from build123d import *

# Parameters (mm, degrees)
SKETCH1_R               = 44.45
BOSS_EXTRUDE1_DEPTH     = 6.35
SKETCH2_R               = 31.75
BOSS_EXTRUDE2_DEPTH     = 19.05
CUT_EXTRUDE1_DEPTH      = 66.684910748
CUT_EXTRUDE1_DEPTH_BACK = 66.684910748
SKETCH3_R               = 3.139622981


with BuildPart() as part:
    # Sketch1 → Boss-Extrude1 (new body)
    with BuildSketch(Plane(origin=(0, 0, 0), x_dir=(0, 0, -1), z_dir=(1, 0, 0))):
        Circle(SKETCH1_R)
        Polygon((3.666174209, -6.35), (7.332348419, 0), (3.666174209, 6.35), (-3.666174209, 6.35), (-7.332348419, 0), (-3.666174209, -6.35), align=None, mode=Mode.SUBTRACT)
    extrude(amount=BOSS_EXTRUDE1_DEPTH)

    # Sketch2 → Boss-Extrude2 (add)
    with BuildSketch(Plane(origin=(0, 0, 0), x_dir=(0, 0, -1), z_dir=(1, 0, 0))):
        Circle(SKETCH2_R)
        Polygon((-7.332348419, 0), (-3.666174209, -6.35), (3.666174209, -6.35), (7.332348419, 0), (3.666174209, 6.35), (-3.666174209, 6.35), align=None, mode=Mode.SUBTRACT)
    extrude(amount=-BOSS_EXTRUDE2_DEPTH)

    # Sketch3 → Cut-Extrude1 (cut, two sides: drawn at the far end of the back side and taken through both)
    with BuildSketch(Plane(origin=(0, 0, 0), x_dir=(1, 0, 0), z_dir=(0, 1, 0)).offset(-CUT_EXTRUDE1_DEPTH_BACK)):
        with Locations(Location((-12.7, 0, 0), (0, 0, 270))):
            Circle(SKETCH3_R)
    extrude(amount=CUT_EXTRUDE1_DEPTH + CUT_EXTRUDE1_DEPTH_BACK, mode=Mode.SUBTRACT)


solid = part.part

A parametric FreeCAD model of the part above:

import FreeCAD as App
import Part
import Sketcher

V = App.Vector
Q = App.Units.Quantity


def add_polygon(sketch, points):
    """Adds a closed chain of lines whose ends are joined by coincident constraints."""
    first, n = sketch.GeometryCount, len(points)
    for a, b in zip(points, points[1:] + points[:1]):
        sketch.addGeometry(Part.LineSegment(App.Vector(*a, 0), App.Vector(*b, 0)), False)
    for i in range(n):
        sketch.addConstraint(Sketcher.Constraint("Coincident", first + i, 2, first + (i + 1) % n, 1))

doc = App.newDocument("Part")
body = doc.addObject("PartDesign::Body", "Body")

# Sketch on YZ plane
sketch1 = body.newObject("Sketcher::SketchObject", "Sketch")
sketch1.AttachmentSupport = (doc.getObject("YZ_Plane"), [""])
sketch1.MapMode = "FlatFace"
sketch1.addGeometry(Part.Circle(V(0, 0, 0), V(0, 0, 1), 44), False)  # 0
add_polygon(sketch1, [(0, -7), (-6, -4), (-6, 4), (0, 7), (6, 4), (6, -4)])  # lines 1-6
sketch1.addConstraint([
    Sketcher.Constraint("Vertical", 2),
    Sketcher.Constraint("Vertical", 5),
    Sketcher.Constraint("Coincident", 0, 3, -1, 1),
    Sketcher.Constraint("Symmetric", 1, 2, 4, 2, -1, 1),
    Sketcher.Constraint("Symmetric", 3, 2, 6, 2, -1, 1),
    Sketcher.Constraint("PointOnObject", 3, 2, -2),
    Sketcher.Constraint("Parallel", 3, 6),
    Sketcher.Constraint("Horizontal", 2, 2, 4, 2),
    Sketcher.Constraint("Diameter", 0, Q("3.5 in")),
    Sketcher.Constraint("Angle", 1, Q("150 deg")),
    Sketcher.Constraint("DistanceX", 2, 2, 4, 2, Q("0.5 in")),
    Sketcher.Constraint("DistanceY", 2, 1, 2, 2, 7.332348),
])
pad1 = body.newObject("PartDesign::Pad", "Pad")
pad1.Profile = sketch1
pad1.Length = Q("0.25 in")

# Sketch on YZ plane
sketch2 = body.newObject("Sketcher::SketchObject", "Sketch001")
sketch2.AttachmentSupport = (doc.getObject("YZ_Plane"), [""])
sketch2.MapMode = "FlatFace"
sketch2.addGeometry(Part.Circle(V(0, 0, 0), V(0, 0, 1), 32), False)  # 0
add_polygon(sketch2, [(-6, 4), (0, 7), (6, 4), (6, -4), (0, -7), (-6, -4)])  # lines 1-6
sketch2.addConstraint([
    Sketcher.Constraint("Vertical", 3),
    Sketcher.Constraint("Vertical", 6),
    Sketcher.Constraint("Coincident", 0, 3, -1, 1),
    Sketcher.Constraint("Symmetric", 1, 2, 4, 2, -1, 1),
    Sketcher.Constraint("Symmetric", 2, 2, 5, 2, -1, 1),
    Sketcher.Constraint("PointOnObject", 1, 2, -2),
    Sketcher.Constraint("Parallel", 1, 4),
    Sketcher.Constraint("Horizontal", 3, 2, 5, 2),
    Sketcher.Constraint("Diameter", 0, Q("2.5 in")),
    Sketcher.Constraint("Angle", 1, Q("30 deg")),
    Sketcher.Constraint("DistanceX", 5, 2, 3, 2, Q("0.5 in")),
    Sketcher.Constraint("DistanceY", 3, 2, 3, 1, 7.332348),
])
pad2 = body.newObject("PartDesign::Pad", "Pad001")
pad2.Profile = sketch2
pad2.Length = Q("0.75 in")
pad2.Reversed = True

# Sketch on XZ plane
sketch3 = body.newObject("Sketcher::SketchObject", "Sketch002")
sketch3.AttachmentSupport = (doc.getObject("XZ_Plane"), [""])
sketch3.MapMode = "FlatFace"
sketch3.addGeometry(Part.Circle(V(-12.7, 0, 0), V(0, 0, 1), 3.1), False)
sketch3.addConstraint([
    Sketcher.Constraint("PointOnObject", 0, 3, -1),
    Sketcher.Constraint("DistanceX", 0, 3, -1, 1, Q("0.5 in")),
    Sketcher.Constraint("Diameter", 0, 6.279246),
])
pocket1 = body.newObject("PartDesign::Pocket", "Pocket")
pocket1.Profile = sketch3
pocket1.Type = "ThroughAll"
pocket1.Midplane = True

doc.recompute()
